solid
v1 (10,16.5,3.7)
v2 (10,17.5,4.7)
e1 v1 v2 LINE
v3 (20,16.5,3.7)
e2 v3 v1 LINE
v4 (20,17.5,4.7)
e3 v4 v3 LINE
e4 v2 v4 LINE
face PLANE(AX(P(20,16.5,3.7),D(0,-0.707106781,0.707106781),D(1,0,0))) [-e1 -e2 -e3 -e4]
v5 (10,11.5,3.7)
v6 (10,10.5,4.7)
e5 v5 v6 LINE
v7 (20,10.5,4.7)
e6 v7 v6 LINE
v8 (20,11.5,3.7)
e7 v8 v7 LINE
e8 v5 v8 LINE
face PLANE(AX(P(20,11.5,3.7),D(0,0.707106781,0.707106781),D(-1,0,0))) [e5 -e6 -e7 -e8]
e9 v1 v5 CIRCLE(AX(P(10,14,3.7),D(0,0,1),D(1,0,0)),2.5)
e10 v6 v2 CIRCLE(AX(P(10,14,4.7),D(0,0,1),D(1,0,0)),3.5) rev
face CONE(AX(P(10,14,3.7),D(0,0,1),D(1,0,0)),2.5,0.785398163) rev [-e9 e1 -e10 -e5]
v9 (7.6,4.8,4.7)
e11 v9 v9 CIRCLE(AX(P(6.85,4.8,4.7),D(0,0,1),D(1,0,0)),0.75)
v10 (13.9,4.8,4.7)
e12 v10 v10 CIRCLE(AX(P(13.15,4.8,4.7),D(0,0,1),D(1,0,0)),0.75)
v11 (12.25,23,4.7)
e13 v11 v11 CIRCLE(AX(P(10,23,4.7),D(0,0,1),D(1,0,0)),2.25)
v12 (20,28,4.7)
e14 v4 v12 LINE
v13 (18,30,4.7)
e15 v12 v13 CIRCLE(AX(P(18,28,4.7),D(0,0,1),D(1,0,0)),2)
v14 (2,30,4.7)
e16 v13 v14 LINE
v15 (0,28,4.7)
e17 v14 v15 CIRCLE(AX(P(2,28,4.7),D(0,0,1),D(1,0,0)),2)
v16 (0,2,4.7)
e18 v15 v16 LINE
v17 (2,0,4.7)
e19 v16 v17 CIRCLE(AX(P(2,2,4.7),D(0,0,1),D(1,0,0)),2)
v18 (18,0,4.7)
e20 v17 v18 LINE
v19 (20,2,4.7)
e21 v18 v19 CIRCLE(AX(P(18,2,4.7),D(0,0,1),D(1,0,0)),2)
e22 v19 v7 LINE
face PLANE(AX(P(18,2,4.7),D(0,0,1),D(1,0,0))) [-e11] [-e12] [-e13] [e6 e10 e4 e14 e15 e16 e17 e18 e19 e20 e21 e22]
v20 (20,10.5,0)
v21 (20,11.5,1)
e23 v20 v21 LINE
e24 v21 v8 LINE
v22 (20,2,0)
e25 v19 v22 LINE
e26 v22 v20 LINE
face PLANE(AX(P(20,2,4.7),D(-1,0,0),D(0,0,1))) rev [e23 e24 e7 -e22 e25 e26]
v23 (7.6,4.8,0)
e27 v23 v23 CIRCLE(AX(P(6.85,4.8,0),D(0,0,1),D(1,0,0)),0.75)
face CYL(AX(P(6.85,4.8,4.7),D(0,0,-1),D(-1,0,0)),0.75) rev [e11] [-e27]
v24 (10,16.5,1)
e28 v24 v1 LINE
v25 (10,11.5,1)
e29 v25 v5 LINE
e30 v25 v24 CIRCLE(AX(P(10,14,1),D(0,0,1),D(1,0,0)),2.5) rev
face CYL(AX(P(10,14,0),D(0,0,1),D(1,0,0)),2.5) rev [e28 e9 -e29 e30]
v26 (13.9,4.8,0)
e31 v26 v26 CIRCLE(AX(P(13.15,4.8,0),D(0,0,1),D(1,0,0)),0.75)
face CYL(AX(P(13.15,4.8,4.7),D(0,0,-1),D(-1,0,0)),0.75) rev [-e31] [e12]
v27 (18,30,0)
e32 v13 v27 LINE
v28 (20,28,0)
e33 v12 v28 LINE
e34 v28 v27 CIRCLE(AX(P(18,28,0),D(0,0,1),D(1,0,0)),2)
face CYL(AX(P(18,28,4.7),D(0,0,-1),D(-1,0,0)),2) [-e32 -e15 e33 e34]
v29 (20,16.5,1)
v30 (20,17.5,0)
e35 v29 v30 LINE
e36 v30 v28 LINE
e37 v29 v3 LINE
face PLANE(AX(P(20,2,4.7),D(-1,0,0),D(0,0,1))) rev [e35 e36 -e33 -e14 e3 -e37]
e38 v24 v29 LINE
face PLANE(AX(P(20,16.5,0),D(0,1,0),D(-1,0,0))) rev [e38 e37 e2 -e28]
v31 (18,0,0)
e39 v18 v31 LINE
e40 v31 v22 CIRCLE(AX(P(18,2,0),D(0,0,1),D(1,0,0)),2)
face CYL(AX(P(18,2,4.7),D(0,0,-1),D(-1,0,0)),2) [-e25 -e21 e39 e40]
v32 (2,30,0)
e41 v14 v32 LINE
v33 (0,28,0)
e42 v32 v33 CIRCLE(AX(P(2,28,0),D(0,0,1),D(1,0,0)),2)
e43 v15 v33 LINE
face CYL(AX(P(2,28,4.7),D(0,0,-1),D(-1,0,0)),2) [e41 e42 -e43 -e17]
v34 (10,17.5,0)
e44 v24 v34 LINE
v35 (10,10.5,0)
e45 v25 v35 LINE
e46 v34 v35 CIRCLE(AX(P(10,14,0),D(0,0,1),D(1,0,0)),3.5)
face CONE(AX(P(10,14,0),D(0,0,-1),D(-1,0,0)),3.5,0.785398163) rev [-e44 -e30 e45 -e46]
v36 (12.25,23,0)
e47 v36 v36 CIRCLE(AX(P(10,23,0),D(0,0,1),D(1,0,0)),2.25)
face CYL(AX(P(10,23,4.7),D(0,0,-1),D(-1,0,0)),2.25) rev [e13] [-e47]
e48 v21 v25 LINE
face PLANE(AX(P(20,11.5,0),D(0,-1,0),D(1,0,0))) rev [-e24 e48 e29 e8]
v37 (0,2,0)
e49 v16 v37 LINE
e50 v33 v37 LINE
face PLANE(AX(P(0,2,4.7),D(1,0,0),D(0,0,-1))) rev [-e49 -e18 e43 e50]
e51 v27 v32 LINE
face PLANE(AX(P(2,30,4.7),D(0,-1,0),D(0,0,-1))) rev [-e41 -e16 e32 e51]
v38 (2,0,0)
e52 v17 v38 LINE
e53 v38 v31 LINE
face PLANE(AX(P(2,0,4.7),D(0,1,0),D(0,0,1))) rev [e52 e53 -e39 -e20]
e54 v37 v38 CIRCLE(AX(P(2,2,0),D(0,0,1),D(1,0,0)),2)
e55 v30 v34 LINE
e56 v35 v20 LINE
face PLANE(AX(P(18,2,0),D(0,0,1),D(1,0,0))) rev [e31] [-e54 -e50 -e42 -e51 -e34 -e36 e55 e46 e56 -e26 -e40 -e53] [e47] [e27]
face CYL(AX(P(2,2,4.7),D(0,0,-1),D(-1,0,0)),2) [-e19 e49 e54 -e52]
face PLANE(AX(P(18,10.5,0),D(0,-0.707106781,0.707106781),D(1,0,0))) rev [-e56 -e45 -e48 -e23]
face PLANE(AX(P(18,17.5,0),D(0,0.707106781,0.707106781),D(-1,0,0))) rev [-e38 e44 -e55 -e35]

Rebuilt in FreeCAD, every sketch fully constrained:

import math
import FreeCAD as App
import Part
import Sketcher

V = App.Vector


def edges_at(feature, points):
    """Names of the edges that pass closest to the given points."""
    edges = feature.Shape.Edges
    near = lambda p: min(range(len(edges)), key=lambda i: edges[i].distToShape(Part.Vertex(*p))[0])
    return sorted({f"Edge{near(p) + 1}" for p in points})

doc = App.newDocument("Part")
body = doc.addObject("PartDesign::Body", "Body")

# Sketch on XY plane
sketch1 = body.newObject("Sketcher::SketchObject", "Sketch")
sketch1.AttachmentSupport = (doc.getObject("XY_Plane"), [""])
sketch1.MapMode = "FlatFace"
sketch1.addGeometry([
    Part.LineSegment(V(2, 0, 0), V(18, 0, 0)),  # 0
    Part.ArcOfCircle(Part.Circle(V(18, 2, 0), V(0, 0, 1), 2), math.radians(-90), math.radians(0)),  # 1
    Part.LineSegment(V(20, 2, 0), V(20, 28, 0)),  # 2
    Part.ArcOfCircle(Part.Circle(V(18, 28, 0), V(0, 0, 1), 2), math.radians(0), math.radians(90)),  # 3
    Part.LineSegment(V(18, 30, 0), V(2, 30, 0)),  # 4
    Part.ArcOfCircle(Part.Circle(V(2, 28, 0), V(0, 0, 1), 2), math.radians(90), math.radians(180)),  # 5
    Part.LineSegment(V(0, 28, 0), V(0, 2, 0)),  # 6
    Part.ArcOfCircle(Part.Circle(V(2, 2, 0), V(0, 0, 1), 2), math.radians(-180), math.radians(-90)),  # 7
    Part.Circle(V(6.85, 4.8, 0), V(0, 0, 1), 0.75),  # 8
    Part.Circle(V(13.15, 4.8, 0), V(0, 0, 1), 0.75),  # 9
    Part.Circle(V(10, 23, 0), V(0, 0, 1), 2.25),  # 10
], False)
sketch1.addConstraint([
    Sketcher.Constraint("Tangent", 0, 2, 1, 1),
    Sketcher.Constraint("Tangent", 1, 2, 2, 1),
    Sketcher.Constraint("Tangent", 2, 2, 3, 1),
    Sketcher.Constraint("Tangent", 3, 2, 4, 1),
    Sketcher.Constraint("Tangent", 4, 2, 5, 1),
    Sketcher.Constraint("Tangent", 5, 2, 6, 1),
    Sketcher.Constraint("Tangent", 6, 2, 7, 1),
    Sketcher.Constraint("Tangent", 7, 2, 0, 1),
    Sketcher.Constraint("Horizontal", 0),
    Sketcher.Constraint("Vertical", 2),
    Sketcher.Constraint("Horizontal", 4),
    Sketcher.Constraint("Vertical", 6),
    Sketcher.Constraint("Equal", 1, 3),
    Sketcher.Constraint("Equal", 3, 5),
    Sketcher.Constraint("Equal", 5, 7),
    Sketcher.Constraint("Equal", 8, 9),
    Sketcher.Constraint("PointOnObject", 0, 2, -1),
    Sketcher.Constraint("PointOnObject", 5, 2, -2),
    Sketcher.Constraint("Horizontal", 8, 3, 9, 3),
    Sketcher.Constraint("Radius", 1, 2.0),
    Sketcher.Constraint("Diameter", 8, 1.5),
    Sketcher.Constraint("Diameter", 10, 4.5),
    Sketcher.Constraint("DistanceX", 0, 1, 0, 2, 16.0),
    Sketcher.Constraint("DistanceY", 2, 1, 2, 2, 26.0),
    Sketcher.Constraint("DistanceX", -1, 1, 10, 3, 10.0),
    Sketcher.Constraint("DistanceY", -1, 1, 10, 3, 23.0),
    Sketcher.Constraint("DistanceY", -1, 1, 8, 3, 4.8),
    Sketcher.Constraint("DistanceX", 8, 3, 9, 3, 6.3),
    Sketcher.Constraint("DistanceX", -1, 1, 8, 3, 6.85),
])
pad1 = body.newObject("PartDesign::Pad", "Pad")
pad1.Profile = sketch1
pad1.Length = 4.7

# Sketch on XY plane
sketch2 = body.newObject("Sketcher::SketchObject", "Sketch001")
sketch2.AttachmentSupport = (doc.getObject("XY_Plane"), [""])
sketch2.MapMode = "FlatFace"
sketch2.AttachmentOffset = App.Placement(V(0, 0, 4.7), App.Rotation())
sketch2.addGeometry([
    Part.LineSegment(V(20, 16.5, 0), V(10, 16.5, 0)),
    Part.ArcOfCircle(Part.Circle(V(10, 14, 0), V(0, 0, 1), 2.5), math.radians(90), math.radians(270)),
    Part.LineSegment(V(10, 11.5, 0), V(20, 11.5, 0)),
    Part.LineSegment(V(20, 11.5, 0), V(20, 16.5, 0)),
], False)
sketch2.addConstraint([
    Sketcher.Constraint("Tangent", 0, 2, 1, 1),
    Sketcher.Constraint("Tangent", 1, 2, 2, 1),
    Sketcher.Constraint("Coincident", 2, 2, 3, 1),
    Sketcher.Constraint("Coincident", 3, 2, 0, 1),
    Sketcher.Constraint("Horizontal", 0),
    Sketcher.Constraint("Horizontal", 2),
    Sketcher.Constraint("Vertical", 3),
    Sketcher.Constraint("Radius", 1, 2.5),
    Sketcher.Constraint("DistanceX", 0, 2, 0, 1, 10.0),
    Sketcher.Constraint("DistanceX", -1, 1, 1, 3, 10.0),
    Sketcher.Constraint("DistanceY", -1, 1, 1, 3, 14.0),
])
pocket1 = body.newObject("PartDesign::Pocket", "Pocket")
pocket1.Profile = sketch2
pocket1.Type = "ThroughAll"
doc.recompute()

chamfer = body.newObject("PartDesign::Chamfer", "Chamfer")
chamfer.Base = (pocket1, edges_at(pocket1, [
    (15, 11.5, 0),
    (7.5, 14, 0),
    (15, 16.5, 0),
    (15, 16.5, 4.7),
    (7.5, 14, 4.7),
    (15, 11.5, 4.7),
]))
chamfer.Size = 1

doc.recompute()
